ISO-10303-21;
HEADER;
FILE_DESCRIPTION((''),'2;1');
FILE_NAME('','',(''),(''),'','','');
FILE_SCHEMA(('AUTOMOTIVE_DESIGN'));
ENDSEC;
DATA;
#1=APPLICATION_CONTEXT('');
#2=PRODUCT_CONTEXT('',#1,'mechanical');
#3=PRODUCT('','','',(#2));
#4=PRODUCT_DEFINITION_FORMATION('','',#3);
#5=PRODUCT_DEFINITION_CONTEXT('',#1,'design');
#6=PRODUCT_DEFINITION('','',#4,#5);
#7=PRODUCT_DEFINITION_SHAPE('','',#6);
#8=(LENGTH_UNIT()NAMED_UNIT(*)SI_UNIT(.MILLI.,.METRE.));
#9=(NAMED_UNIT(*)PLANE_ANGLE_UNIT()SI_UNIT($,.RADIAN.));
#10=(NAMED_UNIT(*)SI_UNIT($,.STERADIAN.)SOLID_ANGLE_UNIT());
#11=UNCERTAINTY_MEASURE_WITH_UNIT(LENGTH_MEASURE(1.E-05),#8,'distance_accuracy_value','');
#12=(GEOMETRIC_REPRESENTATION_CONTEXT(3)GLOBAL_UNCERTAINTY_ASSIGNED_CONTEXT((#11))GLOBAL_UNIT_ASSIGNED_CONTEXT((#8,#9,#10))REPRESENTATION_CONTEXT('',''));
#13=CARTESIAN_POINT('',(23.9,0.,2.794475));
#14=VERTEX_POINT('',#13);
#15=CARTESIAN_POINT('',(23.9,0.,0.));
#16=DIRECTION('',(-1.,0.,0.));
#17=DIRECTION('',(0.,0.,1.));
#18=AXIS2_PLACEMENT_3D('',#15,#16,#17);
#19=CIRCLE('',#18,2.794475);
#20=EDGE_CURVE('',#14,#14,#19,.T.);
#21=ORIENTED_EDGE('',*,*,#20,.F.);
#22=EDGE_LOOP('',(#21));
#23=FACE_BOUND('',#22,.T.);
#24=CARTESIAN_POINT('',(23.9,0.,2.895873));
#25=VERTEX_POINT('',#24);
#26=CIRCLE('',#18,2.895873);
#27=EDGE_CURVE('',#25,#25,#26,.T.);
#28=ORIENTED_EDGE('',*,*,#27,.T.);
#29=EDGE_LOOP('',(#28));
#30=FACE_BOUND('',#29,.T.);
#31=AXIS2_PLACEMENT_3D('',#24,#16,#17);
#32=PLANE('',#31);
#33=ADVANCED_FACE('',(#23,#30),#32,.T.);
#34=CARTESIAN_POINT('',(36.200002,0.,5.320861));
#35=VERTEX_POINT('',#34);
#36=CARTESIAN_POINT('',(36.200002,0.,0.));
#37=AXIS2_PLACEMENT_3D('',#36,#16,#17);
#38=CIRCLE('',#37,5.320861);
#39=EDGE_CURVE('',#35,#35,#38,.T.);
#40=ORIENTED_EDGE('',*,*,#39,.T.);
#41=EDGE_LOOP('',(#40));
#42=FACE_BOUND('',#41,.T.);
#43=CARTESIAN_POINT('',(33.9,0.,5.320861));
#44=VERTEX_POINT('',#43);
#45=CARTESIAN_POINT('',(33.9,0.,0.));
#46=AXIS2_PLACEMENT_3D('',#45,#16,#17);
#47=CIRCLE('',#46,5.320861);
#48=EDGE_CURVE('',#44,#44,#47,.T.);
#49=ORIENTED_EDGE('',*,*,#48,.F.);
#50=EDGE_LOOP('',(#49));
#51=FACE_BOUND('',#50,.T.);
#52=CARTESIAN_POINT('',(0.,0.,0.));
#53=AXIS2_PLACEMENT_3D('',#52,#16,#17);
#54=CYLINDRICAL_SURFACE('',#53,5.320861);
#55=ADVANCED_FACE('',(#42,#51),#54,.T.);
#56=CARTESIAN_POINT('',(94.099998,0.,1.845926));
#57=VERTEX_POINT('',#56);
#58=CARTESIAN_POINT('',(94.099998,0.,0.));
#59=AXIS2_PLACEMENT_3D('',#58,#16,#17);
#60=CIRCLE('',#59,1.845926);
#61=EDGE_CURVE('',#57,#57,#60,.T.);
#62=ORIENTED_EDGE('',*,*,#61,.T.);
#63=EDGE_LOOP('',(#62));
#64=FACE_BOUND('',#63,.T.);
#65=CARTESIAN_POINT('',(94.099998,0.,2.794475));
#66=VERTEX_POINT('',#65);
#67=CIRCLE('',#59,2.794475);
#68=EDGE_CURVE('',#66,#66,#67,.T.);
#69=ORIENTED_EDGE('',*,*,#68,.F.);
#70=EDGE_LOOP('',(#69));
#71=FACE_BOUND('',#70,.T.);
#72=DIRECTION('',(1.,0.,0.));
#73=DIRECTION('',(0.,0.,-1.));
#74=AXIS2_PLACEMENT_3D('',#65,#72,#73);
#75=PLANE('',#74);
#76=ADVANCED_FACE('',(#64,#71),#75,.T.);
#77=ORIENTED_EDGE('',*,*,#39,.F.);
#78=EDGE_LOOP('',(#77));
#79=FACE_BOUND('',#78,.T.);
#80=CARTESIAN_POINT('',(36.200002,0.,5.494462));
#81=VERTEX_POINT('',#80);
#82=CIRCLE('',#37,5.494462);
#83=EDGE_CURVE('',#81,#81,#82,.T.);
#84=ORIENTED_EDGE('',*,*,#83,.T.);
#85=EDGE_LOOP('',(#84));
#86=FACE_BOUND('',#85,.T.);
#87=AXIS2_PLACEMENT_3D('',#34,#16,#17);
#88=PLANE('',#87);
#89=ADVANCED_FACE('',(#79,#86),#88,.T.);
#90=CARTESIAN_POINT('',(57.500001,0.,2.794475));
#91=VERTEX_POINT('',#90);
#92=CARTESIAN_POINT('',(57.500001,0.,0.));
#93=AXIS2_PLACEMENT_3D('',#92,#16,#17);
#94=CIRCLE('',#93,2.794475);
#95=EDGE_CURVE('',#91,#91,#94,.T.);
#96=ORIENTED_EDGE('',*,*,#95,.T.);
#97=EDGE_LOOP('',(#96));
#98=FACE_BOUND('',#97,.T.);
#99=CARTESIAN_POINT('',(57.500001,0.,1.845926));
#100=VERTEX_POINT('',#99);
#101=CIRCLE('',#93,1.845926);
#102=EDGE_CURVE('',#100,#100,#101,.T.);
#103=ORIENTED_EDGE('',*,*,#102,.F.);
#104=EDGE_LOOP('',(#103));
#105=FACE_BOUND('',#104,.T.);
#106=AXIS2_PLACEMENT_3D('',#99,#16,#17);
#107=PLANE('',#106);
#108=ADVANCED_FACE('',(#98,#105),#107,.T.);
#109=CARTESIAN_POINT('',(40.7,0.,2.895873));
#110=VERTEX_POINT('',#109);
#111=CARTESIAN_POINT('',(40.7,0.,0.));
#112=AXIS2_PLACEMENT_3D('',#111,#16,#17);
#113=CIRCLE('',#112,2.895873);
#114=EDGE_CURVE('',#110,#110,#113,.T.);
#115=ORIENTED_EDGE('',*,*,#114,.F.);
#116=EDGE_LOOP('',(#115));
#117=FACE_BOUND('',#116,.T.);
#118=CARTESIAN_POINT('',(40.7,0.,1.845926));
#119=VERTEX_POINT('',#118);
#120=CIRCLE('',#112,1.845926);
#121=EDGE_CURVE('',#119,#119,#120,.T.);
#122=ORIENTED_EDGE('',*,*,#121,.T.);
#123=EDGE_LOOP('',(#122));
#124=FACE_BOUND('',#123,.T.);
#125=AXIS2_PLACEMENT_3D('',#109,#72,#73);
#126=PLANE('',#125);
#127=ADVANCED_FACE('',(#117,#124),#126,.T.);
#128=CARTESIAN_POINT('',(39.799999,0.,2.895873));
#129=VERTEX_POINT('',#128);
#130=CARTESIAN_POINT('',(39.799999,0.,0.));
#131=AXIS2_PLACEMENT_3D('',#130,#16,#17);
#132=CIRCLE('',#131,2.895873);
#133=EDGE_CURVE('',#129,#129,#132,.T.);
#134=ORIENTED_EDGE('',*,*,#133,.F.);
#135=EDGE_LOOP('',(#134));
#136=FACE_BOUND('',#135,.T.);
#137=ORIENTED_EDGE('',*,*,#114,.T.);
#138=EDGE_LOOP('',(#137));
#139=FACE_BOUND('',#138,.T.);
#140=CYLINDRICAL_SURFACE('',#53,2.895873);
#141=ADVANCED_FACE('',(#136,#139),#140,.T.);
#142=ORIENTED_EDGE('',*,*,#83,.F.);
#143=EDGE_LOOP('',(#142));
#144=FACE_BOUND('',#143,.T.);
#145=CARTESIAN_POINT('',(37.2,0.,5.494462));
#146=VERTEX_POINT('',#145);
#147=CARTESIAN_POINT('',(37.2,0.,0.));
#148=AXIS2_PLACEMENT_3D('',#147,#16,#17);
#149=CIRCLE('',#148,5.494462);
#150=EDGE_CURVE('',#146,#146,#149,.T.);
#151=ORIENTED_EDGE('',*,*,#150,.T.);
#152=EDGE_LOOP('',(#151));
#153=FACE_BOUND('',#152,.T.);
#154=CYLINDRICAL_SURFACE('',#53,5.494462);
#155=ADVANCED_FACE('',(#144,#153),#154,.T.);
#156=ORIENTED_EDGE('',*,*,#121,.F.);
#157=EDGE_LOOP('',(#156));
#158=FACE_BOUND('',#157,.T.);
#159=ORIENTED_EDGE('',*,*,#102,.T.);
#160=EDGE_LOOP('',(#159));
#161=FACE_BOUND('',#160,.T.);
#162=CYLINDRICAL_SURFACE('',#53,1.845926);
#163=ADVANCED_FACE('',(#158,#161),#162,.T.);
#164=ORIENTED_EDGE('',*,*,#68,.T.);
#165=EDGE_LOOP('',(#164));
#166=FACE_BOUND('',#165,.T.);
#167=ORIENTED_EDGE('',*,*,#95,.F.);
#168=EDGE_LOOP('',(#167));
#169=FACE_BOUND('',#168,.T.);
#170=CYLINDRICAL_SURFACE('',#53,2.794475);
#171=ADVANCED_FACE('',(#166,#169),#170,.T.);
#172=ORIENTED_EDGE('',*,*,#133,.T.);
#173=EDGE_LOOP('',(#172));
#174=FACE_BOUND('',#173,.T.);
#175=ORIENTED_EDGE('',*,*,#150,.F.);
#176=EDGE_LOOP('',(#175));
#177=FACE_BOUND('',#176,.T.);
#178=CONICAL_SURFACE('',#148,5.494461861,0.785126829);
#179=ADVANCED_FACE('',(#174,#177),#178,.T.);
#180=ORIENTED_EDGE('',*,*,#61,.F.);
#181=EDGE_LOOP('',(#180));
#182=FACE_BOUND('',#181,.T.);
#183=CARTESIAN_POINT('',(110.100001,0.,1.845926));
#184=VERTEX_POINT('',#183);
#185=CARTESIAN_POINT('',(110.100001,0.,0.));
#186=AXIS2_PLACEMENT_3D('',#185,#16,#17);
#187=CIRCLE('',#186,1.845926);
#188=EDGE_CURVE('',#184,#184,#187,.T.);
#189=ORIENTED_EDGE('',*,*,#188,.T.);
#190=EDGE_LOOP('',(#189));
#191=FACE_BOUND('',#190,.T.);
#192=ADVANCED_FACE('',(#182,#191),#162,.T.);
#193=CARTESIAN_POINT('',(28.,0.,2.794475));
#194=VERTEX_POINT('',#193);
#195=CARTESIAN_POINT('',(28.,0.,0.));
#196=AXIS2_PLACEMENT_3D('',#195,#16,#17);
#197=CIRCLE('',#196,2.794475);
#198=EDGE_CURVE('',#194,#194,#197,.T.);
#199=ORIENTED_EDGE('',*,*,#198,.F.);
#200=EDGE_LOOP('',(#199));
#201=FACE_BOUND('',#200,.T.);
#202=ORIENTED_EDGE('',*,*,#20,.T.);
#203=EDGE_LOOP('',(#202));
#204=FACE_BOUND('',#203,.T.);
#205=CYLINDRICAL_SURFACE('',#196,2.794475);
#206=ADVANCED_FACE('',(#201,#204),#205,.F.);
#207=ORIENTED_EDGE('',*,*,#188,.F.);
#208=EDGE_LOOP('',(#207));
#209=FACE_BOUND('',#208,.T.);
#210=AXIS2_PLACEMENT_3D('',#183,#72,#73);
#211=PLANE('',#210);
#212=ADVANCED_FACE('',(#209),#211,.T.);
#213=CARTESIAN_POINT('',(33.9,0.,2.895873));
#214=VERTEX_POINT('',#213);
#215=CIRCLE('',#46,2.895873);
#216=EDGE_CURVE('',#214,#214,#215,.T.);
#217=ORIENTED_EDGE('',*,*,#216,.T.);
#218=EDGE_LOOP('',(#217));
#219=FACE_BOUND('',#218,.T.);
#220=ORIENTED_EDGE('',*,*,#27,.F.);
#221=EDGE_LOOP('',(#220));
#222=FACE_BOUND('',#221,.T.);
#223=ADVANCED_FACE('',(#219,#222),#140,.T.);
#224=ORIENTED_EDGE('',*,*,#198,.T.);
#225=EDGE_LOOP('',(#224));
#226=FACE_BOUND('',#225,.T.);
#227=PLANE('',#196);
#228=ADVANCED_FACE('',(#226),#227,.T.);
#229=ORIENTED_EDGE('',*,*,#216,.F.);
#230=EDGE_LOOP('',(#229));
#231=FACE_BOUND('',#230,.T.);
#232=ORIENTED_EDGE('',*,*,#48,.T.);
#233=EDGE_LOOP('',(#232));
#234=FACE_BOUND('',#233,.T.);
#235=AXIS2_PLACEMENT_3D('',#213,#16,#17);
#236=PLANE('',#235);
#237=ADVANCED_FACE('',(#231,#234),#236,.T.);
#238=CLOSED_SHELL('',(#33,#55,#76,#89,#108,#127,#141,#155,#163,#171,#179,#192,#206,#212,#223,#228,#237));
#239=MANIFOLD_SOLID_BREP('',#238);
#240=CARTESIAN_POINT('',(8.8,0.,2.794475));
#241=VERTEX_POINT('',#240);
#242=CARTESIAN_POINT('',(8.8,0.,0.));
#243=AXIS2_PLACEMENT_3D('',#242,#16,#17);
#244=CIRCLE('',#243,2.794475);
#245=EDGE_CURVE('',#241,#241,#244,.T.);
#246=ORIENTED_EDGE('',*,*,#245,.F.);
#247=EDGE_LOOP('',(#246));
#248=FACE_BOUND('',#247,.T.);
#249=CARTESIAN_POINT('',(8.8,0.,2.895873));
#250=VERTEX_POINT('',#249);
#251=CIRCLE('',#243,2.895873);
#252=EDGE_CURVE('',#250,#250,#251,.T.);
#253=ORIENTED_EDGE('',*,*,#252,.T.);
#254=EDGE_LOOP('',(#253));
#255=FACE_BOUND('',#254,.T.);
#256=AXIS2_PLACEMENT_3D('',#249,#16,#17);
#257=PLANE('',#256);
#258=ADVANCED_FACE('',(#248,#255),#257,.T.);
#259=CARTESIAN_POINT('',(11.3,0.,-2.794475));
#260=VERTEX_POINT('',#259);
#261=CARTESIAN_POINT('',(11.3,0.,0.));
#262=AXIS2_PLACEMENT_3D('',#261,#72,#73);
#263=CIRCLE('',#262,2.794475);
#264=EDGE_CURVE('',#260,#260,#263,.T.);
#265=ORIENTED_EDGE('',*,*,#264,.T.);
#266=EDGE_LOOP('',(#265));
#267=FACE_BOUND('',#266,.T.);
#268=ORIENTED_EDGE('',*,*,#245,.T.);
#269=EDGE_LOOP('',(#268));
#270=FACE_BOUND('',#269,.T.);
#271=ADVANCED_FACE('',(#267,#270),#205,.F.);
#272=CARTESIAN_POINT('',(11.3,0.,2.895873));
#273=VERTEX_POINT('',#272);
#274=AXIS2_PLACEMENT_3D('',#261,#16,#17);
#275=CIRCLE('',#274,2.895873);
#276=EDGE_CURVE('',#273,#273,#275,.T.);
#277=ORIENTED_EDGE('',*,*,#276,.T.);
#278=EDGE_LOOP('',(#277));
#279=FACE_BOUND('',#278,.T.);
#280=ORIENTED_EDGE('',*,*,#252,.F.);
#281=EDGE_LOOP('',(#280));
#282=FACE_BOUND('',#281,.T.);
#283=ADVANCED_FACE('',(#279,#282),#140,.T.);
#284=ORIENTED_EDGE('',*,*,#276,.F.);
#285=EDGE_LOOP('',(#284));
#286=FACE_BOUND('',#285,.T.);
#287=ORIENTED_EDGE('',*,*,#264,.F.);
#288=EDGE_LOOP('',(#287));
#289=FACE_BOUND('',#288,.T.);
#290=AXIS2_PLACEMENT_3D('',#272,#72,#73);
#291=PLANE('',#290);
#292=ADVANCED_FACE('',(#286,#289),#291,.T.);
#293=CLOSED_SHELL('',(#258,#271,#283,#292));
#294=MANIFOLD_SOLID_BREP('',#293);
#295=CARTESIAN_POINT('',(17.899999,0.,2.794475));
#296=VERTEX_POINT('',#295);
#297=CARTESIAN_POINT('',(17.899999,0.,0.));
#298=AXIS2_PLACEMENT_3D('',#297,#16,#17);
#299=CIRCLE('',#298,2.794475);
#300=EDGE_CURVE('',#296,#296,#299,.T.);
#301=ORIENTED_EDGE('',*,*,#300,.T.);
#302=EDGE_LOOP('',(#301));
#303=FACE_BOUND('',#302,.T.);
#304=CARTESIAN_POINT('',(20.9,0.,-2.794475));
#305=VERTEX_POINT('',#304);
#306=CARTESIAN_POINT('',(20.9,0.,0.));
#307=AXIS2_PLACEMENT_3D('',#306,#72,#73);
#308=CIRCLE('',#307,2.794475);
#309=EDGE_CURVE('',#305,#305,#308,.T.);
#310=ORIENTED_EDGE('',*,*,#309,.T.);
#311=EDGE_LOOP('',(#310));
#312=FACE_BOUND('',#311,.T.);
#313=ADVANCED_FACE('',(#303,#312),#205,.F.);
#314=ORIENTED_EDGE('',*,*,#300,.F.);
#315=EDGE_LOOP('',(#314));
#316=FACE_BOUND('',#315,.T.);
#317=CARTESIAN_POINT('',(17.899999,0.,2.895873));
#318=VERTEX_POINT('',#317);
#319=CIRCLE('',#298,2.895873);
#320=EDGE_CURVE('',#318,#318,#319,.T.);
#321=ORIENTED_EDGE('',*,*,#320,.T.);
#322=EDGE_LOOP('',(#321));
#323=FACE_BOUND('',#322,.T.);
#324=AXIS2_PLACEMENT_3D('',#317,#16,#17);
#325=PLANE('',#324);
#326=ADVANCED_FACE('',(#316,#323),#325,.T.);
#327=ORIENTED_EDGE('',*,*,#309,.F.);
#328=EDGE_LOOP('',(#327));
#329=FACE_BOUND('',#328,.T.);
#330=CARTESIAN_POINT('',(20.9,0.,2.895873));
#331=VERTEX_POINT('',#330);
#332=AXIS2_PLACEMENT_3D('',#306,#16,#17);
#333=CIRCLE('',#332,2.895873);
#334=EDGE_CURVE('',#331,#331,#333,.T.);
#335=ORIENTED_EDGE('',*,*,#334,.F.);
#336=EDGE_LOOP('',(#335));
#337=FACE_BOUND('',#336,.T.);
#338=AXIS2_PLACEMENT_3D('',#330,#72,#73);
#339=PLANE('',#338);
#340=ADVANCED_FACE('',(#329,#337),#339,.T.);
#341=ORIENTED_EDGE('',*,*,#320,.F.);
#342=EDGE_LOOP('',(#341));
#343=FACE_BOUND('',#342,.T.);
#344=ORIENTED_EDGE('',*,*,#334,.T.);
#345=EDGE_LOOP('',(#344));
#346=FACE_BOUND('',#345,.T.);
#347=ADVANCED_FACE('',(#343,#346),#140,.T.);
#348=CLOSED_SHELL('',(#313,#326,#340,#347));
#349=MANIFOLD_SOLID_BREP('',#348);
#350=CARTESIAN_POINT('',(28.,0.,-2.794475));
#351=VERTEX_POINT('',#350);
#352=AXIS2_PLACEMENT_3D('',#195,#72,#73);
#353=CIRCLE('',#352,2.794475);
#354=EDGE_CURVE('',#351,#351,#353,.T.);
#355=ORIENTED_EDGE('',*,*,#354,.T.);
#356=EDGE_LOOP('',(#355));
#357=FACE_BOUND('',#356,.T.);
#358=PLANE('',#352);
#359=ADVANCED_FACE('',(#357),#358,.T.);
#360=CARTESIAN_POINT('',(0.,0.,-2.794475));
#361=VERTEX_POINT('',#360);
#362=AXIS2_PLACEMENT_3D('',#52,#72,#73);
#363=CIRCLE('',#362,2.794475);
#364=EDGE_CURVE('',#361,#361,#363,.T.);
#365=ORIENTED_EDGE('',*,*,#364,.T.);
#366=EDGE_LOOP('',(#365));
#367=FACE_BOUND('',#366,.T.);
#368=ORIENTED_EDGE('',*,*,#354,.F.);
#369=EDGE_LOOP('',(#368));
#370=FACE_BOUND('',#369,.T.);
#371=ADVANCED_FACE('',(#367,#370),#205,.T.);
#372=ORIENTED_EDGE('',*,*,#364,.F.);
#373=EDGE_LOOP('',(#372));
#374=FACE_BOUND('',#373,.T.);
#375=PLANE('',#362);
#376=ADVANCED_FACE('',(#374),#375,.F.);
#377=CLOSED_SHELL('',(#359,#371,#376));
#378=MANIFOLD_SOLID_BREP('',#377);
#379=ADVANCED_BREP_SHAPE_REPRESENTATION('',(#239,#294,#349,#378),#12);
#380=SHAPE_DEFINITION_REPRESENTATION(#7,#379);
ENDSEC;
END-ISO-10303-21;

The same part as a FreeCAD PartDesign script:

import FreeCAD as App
import Part
import Sketcher

V = App.Vector
Q = App.Units.Quantity


def add_polygon(sketch, points):
    """Adds a closed chain of lines whose ends are joined by coincident constraints."""
    first, n = sketch.GeometryCount, len(points)
    for a, b in zip(points, points[1:] + points[:1]):
        sketch.addGeometry(Part.LineSegment(App.Vector(*a, 0), App.Vector(*b, 0)), False)
    for i in range(n):
        sketch.addConstraint(Sketcher.Constraint("Coincident", first + i, 2, first + (i + 1) % n, 1))

doc = App.newDocument("Part")
body = doc.addObject("PartDesign::Body", "Body")
body.AllowCompound = True

sketch1 = body.newObject("Sketcher::SketchObject", "Sketch")
sketch1.AttachmentSupport = (doc.getObject("XZ_Plane"), [""])
sketch1.MapMode = "FlatFace"
add_polygon(sketch1, [(23.9, 2.9), (33.9, 2.9), (33.9, 5.32), (36.2, 5.32), (36.2, 5.49), (37.2, 5.49), (39.8, 2.9), (40.7, 2.9), (40.7, 1.85), (57.5, 1.85), (57.5, 2.79), (94.1, 2.79), (94.1, 1.85), (110.1, 1.85), (110.1, 0), (0, 0), (0, 2.79), (8.8, 2.79), (8.8, 2.9), (11.3, 2.9), (11.3, 2.79), (17.9, 2.79), (17.9, 2.9), (20.9, 2.9), (20.9, 2.79), (23.9, 2.79)])
sketch1.addConstraint(Sketcher.Constraint("Horizontal", 0))
sketch1.addConstraint(Sketcher.Constraint("Vertical", 1))
sketch1.addConstraint(Sketcher.Constraint("Horizontal", 2))
sketch1.addConstraint(Sketcher.Constraint("Vertical", 3))
sketch1.addConstraint(Sketcher.Constraint("Horizontal", 4))
sketch1.addConstraint(Sketcher.Constraint("Horizontal", 6))
sketch1.addConstraint(Sketcher.Constraint("Vertical", 7))
sketch1.addConstraint(Sketcher.Constraint("Horizontal", 8))
sketch1.addConstraint(Sketcher.Constraint("Vertical", 9))
sketch1.addConstraint(Sketcher.Constraint("Horizontal", 10))
sketch1.addConstraint(Sketcher.Constraint("Vertical", 11))
sketch1.addConstraint(Sketcher.Constraint("Horizontal", 12))
sketch1.addConstraint(Sketcher.Constraint("Vertical", 13))
sketch1.addConstraint(Sketcher.Constraint("Horizontal", 14))
sketch1.addConstraint(Sketcher.Constraint("Vertical", 15))
sketch1.addConstraint(Sketcher.Constraint("Horizontal", 16))
sketch1.addConstraint(Sketcher.Constraint("Vertical", 17))
sketch1.addConstraint(Sketcher.Constraint("Horizontal", 18))
sketch1.addConstraint(Sketcher.Constraint("Vertical", 19))
sketch1.addConstraint(Sketcher.Constraint("Horizontal", 20))
sketch1.addConstraint(Sketcher.Constraint("Vertical", 21))
sketch1.addConstraint(Sketcher.Constraint("Horizontal", 22))
sketch1.addConstraint(Sketcher.Constraint("Vertical", 23))
sketch1.addConstraint(Sketcher.Constraint("Horizontal", 24))
sketch1.addConstraint(Sketcher.Constraint("Vertical", 25))
sketch1.addConstraint(Sketcher.Constraint("Coincident", 14, 2, -1, 1))
sketch1.addConstraint(Sketcher.Constraint("Horizontal", 0, 2, 5, 2))
sketch1.addConstraint(Sketcher.Constraint("Horizontal", 8, 2, 11, 2))
sketch1.addConstraint(Sketcher.Constraint("Horizontal", 10, 2, 15, 2))
sketch1.addConstraint(Sketcher.Constraint("Horizontal", 6, 2, 17, 2))
sketch1.addConstraint(Sketcher.Constraint("Horizontal", 16, 2, 19, 2))
sketch1.addConstraint(Sketcher.Constraint("Horizontal", 18, 2, 21, 2))
sketch1.addConstraint(Sketcher.Constraint("Horizontal", 20, 2, 23, 2))
sketch1.addConstraint(Sketcher.Constraint("Equal", 22, 24))
sketch1.addConstraint(Sketcher.Constraint("DistanceX", 0, 1, 0, 2, Q("10 mm")))
sketch1.addConstraint(Sketcher.Constraint("DistanceX", 4, 1, 4, 2, Q("0.999998 mm")))
sketch1.addConstraint(Sketcher.Constraint("DistanceX", 22, 1, 22, 2, Q("3 mm")))
sketch1.addConstraint(Sketcher.Constraint("DistanceX", 2, 1, 2, 2, Q("2.300002 mm")))
sketch1.addConstraint(Sketcher.Constraint("DistanceX", 6, 1, 6, 2, Q("0.9 mm")))
sketch1.addConstraint(Sketcher.Constraint("DistanceX", 8, 1, 8, 2, Q("16.800001 mm")))
sketch1.addConstraint(Sketcher.Constraint("DistanceX", 14, 2, 14, 1, Q("110.100001 mm")))
sketch1.addConstraint(Sketcher.Constraint("DistanceX", 16, 1, 16, 2, Q("8.8 mm")))
sketch1.addConstraint(Sketcher.Constraint("DistanceX", 18, 1, 18, 2, Q("2.5 mm")))
sketch1.addConstraint(Sketcher.Constraint("DistanceX", 20, 1, 20, 2, Q("6.599999 mm")))
sketch1.addConstraint(Sketcher.Constraint("DistanceX", -1, 1, 5, 2, Q("39.799999 mm")))
sketch1.addConstraint(Sketcher.Constraint("DistanceX", -1, 1, 10, 2, Q("94.099998 mm")))
sketch1.addConstraint(Sketcher.Constraint("DistanceY", 3, 1, 3, 2, Q("0.173601 mm")))
sketch1.addConstraint(Sketcher.Constraint("DistanceY", 17, 1, 17, 2, Q("0.101398 mm")))
sketch1.addConstraint(Sketcher.Constraint("DistanceY", 9, 1, 9, 2, Q("0.948548 mm")))
sketch1.addConstraint(Sketcher.Constraint("DistanceY", 1, 1, 1, 2, Q("2.424987 mm")))
sketch1.addConstraint(Sketcher.Constraint("DistanceY", 13, 2, 13, 1, Q("1.845926 mm")))
revolution = body.newObject("PartDesign::Revolution", "Revolution")
revolution.Profile = sketch1
revolution.ReferenceAxis = (sketch1, ["H_Axis"])
revolution.Angle = 360

sketch2 = body.newObject("Sketcher::SketchObject", "Sketch001")
sketch2.AttachmentSupport = (doc.getObject("YZ_Plane"), [""])
sketch2.MapMode = "FlatFace"
sketch2.addGeometry(Part.Circle(V(0, 0, 0), V(0, 0, 1), 2.8), False)
sketch2.addConstraint(Sketcher.Constraint("Coincident", 0, 3, -1, 1))
sketch2.addConstraint(Sketcher.Constraint("Diameter", 0, Q("5.58895 mm")))
pocket1 = body.newObject("PartDesign::Pocket", "Pocket")
pocket1.Profile = sketch2
pocket1.Length = 28
pocket1.Reversed = True
body2 = doc.addObject("PartDesign::Body", "Body001")

sketch3 = body2.newObject("Sketcher::SketchObject", "Sketch002")
sketch3.AttachmentSupport = (doc.getObject("YZ_Plane001"), [""])
sketch3.MapMode = "FlatFace"
sketch3.addGeometry(Part.Circle(V(0, 0, 0), V(0, 0, 1), 2.8), False)
sketch3.addConstraint(Sketcher.Constraint("Coincident", 0, 3, -1, 1))
sketch3.addConstraint(Sketcher.Constraint("Diameter", 0, Q("5.58895 mm")))
pad1 = body2.newObject("PartDesign::Pad", "Pad")
pad1.Profile = sketch3
pad1.Length = 28

doc.recompute()
